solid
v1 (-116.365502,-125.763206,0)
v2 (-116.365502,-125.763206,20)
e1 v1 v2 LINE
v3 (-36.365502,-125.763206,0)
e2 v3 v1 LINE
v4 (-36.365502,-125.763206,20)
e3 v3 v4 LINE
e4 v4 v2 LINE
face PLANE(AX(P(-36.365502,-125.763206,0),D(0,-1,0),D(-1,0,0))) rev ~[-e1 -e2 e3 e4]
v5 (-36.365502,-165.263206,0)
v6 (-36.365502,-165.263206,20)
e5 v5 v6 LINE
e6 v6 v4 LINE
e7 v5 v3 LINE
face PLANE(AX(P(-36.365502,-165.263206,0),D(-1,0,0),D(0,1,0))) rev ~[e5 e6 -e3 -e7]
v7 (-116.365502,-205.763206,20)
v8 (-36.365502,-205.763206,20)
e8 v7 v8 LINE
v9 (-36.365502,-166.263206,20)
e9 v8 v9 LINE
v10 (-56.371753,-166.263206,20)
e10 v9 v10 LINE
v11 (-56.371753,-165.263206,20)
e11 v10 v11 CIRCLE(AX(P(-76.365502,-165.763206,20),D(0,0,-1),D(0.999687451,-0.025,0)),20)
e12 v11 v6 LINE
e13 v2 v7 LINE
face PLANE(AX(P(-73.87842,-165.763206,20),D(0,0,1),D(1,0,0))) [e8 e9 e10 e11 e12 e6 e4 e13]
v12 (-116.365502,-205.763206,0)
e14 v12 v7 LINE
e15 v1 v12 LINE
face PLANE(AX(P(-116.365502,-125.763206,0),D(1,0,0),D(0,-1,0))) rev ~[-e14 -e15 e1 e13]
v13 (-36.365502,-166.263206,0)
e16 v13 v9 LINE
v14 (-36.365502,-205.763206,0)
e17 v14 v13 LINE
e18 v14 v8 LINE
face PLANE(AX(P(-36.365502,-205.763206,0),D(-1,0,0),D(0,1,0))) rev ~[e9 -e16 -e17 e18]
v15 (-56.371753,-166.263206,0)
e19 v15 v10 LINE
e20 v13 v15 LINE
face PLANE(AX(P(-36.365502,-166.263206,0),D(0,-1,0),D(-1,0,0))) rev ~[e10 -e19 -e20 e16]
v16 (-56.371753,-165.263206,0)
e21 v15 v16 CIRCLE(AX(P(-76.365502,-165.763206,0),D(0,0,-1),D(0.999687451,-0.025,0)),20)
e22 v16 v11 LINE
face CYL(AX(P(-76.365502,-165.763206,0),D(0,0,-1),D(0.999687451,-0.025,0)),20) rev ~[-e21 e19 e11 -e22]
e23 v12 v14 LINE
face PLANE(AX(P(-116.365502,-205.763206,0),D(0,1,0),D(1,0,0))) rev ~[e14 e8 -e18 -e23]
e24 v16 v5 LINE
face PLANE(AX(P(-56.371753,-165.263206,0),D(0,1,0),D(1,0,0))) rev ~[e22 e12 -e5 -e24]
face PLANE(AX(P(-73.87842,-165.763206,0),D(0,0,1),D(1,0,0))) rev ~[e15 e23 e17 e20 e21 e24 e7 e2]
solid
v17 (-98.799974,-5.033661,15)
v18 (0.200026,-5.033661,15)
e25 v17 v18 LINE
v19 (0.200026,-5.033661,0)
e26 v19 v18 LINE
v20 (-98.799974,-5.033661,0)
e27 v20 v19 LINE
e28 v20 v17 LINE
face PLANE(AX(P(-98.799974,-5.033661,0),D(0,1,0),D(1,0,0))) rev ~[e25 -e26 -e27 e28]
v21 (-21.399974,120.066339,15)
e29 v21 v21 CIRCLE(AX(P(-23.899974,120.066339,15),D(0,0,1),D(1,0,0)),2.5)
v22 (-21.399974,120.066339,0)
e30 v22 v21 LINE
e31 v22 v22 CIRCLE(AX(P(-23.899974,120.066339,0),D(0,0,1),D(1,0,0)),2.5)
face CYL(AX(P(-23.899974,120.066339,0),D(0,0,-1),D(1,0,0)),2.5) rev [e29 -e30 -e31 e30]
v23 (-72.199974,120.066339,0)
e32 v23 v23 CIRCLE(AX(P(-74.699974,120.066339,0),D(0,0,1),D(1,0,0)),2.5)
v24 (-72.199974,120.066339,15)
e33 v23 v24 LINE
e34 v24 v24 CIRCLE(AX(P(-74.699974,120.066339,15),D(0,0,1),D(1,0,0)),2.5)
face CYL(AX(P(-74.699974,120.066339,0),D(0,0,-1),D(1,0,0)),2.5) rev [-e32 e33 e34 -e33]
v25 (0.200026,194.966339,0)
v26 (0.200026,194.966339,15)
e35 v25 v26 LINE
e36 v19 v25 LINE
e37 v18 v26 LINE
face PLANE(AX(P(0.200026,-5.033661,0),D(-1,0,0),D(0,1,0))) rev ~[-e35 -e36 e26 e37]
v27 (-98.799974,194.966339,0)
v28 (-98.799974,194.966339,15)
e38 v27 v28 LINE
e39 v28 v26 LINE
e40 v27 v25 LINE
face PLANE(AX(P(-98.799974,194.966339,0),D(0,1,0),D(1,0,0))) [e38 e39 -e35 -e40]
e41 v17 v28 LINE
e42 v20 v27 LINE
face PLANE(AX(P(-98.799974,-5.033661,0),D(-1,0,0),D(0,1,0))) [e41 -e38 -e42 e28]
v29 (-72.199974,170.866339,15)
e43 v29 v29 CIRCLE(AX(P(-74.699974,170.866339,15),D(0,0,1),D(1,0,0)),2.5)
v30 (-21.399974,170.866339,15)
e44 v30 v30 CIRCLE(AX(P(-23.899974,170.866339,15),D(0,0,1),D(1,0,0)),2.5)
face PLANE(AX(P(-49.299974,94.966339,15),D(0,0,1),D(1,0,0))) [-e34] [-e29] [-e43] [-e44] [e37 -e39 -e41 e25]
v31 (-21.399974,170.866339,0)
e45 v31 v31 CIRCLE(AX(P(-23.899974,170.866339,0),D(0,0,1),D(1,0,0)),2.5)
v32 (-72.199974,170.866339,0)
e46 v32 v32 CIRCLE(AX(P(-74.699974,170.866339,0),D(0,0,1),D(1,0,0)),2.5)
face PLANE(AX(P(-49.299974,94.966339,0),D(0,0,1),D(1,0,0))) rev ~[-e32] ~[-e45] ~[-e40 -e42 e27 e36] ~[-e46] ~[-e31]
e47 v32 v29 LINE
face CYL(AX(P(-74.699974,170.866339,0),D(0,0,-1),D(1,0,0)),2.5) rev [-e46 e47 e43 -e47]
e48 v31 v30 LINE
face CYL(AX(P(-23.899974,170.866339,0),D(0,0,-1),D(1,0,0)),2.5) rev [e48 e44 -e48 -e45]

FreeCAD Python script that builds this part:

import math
import FreeCAD as App
import Part
import Sketcher
from FreeCAD import Vector


def add_polygon(sketch, points):
    """Adds a closed chain of lines whose ends are joined by coincident constraints."""
    first, n = sketch.GeometryCount, len(points)
    for a, b in zip(points, points[1:] + points[:1]):
        sketch.addGeometry(Part.LineSegment(App.Vector(*a, 0), App.Vector(*b, 0)), False)
    for i in range(n):
        sketch.addConstraint(Sketcher.Constraint("Coincident", first + i, 2, first + (i + 1) % n, 1))

doc = App.newDocument("Part")
body = doc.addObject("PartDesign::Body", "Body")

# Sketch on XY plane
sketch1 = body.newObject("Sketcher::SketchObject", "Sketch")
sketch1.AttachmentSupport = (doc.getObject("XY_Plane"), [""])
sketch1.MapMode = "FlatFace"
add_polygon(sketch1, [(-98.799974, 194.966339), (-98.799974, -5.033661), (0.200026, -5.033661), (0.200026, 194.966339)])  # lines 0-3
sketch1.addGeometry(Part.Circle(Vector(-74.699974, 120.066339, 0), Vector(0, 0, 1), 2.5), False)  # 4
sketch1.addGeometry(Part.Circle(Vector(-23.899974, 120.066339, 0), Vector(0, 0, 1), 2.5), False)  # 5
sketch1.addGeometry(Part.Circle(Vector(-74.699974, 170.866339, 0), Vector(0, 0, 1), 2.5), False)  # 6
sketch1.addGeometry(Part.Circle(Vector(-23.899974, 170.866339, 0), Vector(0, 0, 1), 2.5), False)  # 7
sketch1.addConstraint([
    Sketcher.Constraint("Vertical", 0),
    Sketcher.Constraint("Horizontal", 1),
    Sketcher.Constraint("Vertical", 2),
    Sketcher.Constraint("Horizontal", 3),
    Sketcher.Constraint("Equal", 4, 5),
    Sketcher.Constraint("Equal", 5, 6),
    Sketcher.Constraint("Equal", 6, 7),
    Sketcher.Constraint("Horizontal", 4, 3, 5, 3),
    Sketcher.Constraint("Horizontal", 6, 3, 7, 3),
    Sketcher.Constraint("Vertical", 4, 3, 6, 3),
    Sketcher.Constraint("Vertical", 5, 3, 7, 3),
    Sketcher.Constraint("Diameter", 4, 5.0),
    Sketcher.Constraint("DistanceX", 1, 1, 1, 2, 99.0),
    Sketcher.Constraint("DistanceY", 0, 2, 0, 1, 200.0),
    Sketcher.Constraint("DistanceX", 4, 3, 5, 3, 50.8),
    Sketcher.Constraint("DistanceY", 4, 3, 6, 3, 50.8),
    Sketcher.Constraint("DistanceX", 0, 2, 4, 3, 24.1),
    Sketcher.Constraint("DistanceY", 0, 2, 4, 3, 125.1),
    Sketcher.Constraint("DistanceY", -1, 1, 4, 3, 120.066339),
    Sketcher.Constraint("DistanceX", 4, 3, -1, 1, 74.699974),
])
pad1 = body.newObject("PartDesign::Pad", "Pad")
pad1.Profile = sketch1
pad1.Length = 15
body2 = doc.addObject("PartDesign::Body", "Body001")

# Sketch on XY plane
sketch2 = body2.newObject("Sketcher::SketchObject", "Sketch001")
sketch2.AttachmentSupport = (doc.getObject("XY_Plane001"), [""])
sketch2.MapMode = "FlatFace"
sketch2.addGeometry([
    Part.LineSegment(Vector(-36.365502, -125.763206, 0), Vector(-116.365502, -125.763206, 0)),  # 0
    Part.LineSegment(Vector(-116.365502, -125.763206, 0), Vector(-116.365502, -205.763206, 0)),  # 1
    Part.LineSegment(Vector(-116.365502, -205.763206, 0), Vector(-36.365502, -205.763206, 0)),  # 2
    Part.LineSegment(Vector(-36.365502, -205.763206, 0), Vector(-36.365502, -166.263206, 0)),  # 3
    Part.LineSegment(Vector(-36.365502, -166.263206, 0), Vector(-56.371753, -166.263206, 0)),  # 4
    Part.ArcOfCircle(Part.Circle(Vector(-76.365502, -165.763206, 0), Vector(0, 0, 1), 20), math.radians(1.432544), math.radians(358.567456)),  # 5
    Part.LineSegment(Vector(-56.371753, -165.263206, 0), Vector(-36.365502, -165.263206, 0)),  # 6
    Part.LineSegment(Vector(-36.365502, -165.263206, 0), Vector(-36.365502, -125.763206, 0)),  # 7
], False)
sketch2.addConstraint([
    Sketcher.Constraint("Coincident", 0, 2, 1, 1),
    Sketcher.Constraint("Coincident", 1, 2, 2, 1),
    Sketcher.Constraint("Coincident", 2, 2, 3, 1),
    Sketcher.Constraint("Coincident", 3, 2, 4, 1),
    Sketcher.Constraint("Coincident", 4, 2, 5, 2),
    Sketcher.Constraint("Coincident", 5, 1, 6, 1),
    Sketcher.Constraint("Coincident", 6, 2, 7, 1),
    Sketcher.Constraint("Coincident", 7, 2, 0, 1),
    Sketcher.Constraint("Horizontal", 0),
    Sketcher.Constraint("Vertical", 1),
    Sketcher.Constraint("Horizontal", 2),
    Sketcher.Constraint("Vertical", 3),
    Sketcher.Constraint("Horizontal", 4),
    Sketcher.Constraint("Horizontal", 6),
    Sketcher.Constraint("Vertical", 7),
    Sketcher.Constraint("Vertical", 4, 2, 5, 1),
    Sketcher.Constraint("Vertical", 3, 2, 6, 2),
    Sketcher.Constraint("Equal", 2, 1),
    Sketcher.Constraint("Equal", 3, 7),
    Sketcher.Constraint("Radius", 5, 20.0),
    Sketcher.Constraint("DistanceX", 0, 2, 0, 1, 80.0),
    Sketcher.Constraint("DistanceY", 3, 1, 3, 2, 39.5),
    Sketcher.Constraint("DistanceX", 0, 2, 5, 3, 40.0),
    Sketcher.Constraint("DistanceX", 5, 3, -1, 1, 76.365502),
    Sketcher.Constraint("DistanceY", 5, 3, -1, 1, 165.763206),
])
pad2 = body2.newObject("PartDesign::Pad", "Pad001")
pad2.Profile = sketch2
pad2.Length = 20

doc.recompute()
